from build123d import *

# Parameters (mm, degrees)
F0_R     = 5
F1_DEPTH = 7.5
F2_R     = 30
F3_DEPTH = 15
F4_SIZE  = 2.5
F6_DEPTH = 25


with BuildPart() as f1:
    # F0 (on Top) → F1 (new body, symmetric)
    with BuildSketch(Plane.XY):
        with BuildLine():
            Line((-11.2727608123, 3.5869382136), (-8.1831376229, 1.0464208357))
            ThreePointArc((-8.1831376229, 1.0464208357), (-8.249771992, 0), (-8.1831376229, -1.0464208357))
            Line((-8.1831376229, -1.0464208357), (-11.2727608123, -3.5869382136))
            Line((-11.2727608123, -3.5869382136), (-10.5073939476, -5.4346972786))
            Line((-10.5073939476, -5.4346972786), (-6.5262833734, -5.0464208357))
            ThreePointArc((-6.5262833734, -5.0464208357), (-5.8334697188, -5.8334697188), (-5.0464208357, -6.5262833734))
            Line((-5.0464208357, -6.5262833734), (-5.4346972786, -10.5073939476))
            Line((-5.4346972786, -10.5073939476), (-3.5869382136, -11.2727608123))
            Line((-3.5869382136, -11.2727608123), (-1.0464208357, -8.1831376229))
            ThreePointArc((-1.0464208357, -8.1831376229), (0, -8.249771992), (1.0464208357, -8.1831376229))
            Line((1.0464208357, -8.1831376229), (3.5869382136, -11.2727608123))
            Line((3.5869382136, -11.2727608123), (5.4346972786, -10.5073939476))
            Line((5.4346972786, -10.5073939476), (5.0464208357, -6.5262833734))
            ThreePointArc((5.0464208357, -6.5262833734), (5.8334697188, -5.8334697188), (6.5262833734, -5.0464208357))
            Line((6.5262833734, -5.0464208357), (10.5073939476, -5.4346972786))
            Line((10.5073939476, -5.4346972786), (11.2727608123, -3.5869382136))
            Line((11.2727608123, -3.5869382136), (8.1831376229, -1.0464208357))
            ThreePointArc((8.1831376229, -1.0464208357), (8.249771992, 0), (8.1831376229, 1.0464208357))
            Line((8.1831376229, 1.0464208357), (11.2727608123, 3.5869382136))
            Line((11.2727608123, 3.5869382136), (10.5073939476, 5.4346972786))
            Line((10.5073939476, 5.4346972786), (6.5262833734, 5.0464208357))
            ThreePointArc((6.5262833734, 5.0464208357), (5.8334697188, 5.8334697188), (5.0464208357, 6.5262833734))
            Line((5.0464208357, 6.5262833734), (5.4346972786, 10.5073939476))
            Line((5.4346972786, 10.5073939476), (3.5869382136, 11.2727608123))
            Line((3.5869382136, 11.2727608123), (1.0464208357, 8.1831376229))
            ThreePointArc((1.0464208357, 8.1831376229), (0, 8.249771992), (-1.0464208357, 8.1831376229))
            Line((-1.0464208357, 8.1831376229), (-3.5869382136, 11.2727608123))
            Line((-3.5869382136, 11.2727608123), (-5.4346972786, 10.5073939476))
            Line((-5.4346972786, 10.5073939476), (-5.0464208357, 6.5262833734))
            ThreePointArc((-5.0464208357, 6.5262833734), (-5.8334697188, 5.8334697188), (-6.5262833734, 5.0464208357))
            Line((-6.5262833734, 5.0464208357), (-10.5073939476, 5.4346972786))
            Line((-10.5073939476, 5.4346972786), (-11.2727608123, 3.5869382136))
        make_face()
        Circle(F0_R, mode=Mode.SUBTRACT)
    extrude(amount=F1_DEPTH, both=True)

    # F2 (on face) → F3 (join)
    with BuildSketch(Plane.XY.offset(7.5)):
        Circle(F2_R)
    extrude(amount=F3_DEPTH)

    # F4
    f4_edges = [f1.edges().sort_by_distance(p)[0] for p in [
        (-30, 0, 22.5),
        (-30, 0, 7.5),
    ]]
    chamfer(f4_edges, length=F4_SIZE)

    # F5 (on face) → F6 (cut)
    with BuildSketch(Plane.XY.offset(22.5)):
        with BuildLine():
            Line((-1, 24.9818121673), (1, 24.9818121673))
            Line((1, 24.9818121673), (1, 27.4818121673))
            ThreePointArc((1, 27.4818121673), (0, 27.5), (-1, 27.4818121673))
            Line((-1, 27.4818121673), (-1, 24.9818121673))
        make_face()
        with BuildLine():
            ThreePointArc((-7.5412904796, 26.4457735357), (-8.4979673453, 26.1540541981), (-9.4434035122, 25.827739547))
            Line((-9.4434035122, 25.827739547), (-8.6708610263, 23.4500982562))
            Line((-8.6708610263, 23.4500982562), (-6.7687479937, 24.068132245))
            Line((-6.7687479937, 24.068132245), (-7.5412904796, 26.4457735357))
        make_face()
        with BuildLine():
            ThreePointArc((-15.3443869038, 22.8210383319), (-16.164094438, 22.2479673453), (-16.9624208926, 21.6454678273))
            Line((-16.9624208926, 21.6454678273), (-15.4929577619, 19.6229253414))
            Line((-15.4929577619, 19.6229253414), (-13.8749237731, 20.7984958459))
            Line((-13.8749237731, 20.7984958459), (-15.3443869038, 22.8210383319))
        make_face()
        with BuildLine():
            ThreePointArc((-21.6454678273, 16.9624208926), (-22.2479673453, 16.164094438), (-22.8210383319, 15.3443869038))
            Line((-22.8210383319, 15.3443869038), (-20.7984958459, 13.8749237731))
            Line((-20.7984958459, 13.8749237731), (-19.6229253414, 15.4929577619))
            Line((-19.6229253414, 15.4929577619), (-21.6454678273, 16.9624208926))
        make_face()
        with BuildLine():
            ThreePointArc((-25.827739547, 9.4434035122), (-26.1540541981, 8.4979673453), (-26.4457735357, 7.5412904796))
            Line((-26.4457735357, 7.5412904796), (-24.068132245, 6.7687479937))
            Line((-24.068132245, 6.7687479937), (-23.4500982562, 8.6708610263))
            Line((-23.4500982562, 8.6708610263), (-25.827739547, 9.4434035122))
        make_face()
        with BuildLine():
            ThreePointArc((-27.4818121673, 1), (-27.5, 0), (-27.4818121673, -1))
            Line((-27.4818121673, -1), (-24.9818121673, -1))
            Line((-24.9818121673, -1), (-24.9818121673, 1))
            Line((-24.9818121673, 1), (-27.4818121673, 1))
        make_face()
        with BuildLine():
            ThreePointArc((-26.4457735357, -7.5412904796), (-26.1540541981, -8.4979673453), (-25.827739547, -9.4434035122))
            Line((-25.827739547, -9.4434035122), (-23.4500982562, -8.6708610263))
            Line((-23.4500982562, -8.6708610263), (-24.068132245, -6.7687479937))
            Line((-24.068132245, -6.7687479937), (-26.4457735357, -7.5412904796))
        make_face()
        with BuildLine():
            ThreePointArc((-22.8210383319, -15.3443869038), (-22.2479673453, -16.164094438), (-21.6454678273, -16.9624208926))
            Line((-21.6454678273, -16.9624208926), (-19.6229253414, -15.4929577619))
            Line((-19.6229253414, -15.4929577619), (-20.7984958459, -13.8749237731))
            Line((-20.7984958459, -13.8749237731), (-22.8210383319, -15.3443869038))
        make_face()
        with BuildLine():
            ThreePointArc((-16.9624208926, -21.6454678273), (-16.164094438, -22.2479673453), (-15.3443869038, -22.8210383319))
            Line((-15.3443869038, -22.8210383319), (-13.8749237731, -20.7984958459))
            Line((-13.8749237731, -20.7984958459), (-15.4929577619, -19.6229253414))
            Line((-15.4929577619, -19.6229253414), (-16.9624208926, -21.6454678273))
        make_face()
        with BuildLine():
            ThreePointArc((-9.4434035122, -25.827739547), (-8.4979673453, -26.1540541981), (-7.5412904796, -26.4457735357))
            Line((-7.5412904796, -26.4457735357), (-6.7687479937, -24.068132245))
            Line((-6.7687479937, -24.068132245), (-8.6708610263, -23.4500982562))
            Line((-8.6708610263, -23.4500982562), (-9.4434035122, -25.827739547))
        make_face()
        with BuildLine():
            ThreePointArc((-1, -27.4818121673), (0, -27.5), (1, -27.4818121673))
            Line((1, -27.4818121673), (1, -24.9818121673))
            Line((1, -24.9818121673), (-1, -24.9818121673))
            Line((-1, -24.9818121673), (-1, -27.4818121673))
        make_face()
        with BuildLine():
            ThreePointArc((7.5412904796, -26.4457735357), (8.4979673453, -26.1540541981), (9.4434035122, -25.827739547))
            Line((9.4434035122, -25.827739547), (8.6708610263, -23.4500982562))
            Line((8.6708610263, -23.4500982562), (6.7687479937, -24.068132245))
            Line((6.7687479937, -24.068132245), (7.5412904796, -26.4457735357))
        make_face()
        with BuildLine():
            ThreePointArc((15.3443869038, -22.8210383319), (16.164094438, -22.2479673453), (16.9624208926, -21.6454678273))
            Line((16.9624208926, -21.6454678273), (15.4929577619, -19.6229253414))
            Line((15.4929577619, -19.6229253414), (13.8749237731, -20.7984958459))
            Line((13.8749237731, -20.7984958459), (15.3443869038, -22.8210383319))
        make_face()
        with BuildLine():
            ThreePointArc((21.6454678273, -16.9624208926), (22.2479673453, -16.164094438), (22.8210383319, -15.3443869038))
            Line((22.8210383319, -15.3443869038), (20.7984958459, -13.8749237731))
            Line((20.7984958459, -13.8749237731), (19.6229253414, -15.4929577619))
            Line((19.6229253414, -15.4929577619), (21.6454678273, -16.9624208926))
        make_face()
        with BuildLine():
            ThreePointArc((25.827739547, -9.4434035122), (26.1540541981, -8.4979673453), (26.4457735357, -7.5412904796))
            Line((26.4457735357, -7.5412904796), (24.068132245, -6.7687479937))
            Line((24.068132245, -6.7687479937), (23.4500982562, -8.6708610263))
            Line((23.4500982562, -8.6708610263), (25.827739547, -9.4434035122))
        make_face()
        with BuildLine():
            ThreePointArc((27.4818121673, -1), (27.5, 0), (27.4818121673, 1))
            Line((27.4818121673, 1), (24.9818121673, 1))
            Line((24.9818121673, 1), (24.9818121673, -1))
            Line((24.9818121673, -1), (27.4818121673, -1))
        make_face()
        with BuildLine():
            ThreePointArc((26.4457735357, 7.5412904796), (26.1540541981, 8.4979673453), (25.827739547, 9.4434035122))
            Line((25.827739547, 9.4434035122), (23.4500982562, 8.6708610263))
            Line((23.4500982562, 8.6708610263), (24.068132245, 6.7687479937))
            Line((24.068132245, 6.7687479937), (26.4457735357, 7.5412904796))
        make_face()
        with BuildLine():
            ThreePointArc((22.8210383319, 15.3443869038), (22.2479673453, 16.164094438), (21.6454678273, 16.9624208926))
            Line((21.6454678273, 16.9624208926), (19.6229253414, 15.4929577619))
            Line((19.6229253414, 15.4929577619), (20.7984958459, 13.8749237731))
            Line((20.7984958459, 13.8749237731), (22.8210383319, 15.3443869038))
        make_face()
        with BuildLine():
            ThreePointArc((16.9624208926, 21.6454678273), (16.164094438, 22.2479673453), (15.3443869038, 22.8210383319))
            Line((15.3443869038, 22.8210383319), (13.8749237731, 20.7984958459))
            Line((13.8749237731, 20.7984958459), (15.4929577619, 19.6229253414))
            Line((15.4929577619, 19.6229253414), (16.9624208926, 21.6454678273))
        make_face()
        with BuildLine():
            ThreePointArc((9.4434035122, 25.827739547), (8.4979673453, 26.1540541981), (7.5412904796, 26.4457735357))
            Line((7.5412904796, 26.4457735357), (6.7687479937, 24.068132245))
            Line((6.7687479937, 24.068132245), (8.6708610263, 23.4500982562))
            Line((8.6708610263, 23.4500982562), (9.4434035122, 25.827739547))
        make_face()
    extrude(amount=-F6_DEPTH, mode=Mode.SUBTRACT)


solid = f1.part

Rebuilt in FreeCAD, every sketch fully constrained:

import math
import FreeCAD as App
import Part
import Sketcher

V = App.Vector
Q = App.Units.Quantity


def edges_at(feature, points):
    """Names of the edges that pass closest to the given points."""
    edges = feature.Shape.Edges
    near = lambda p: min(range(len(edges)), key=lambda i: edges[i].distToShape(Part.Vertex(*p))[0])
    return sorted({f"Edge{near(p) + 1}" for p in points})

doc = App.newDocument("Part")
params = doc.addObject("Spreadsheet::Sheet", "Params")
for row, (alias, value) in enumerate([
    ("sketch1_diameter", "10 mm"),
    ("sketch1_length", "4 mm"),
    ("sketch1_length2", "2 mm"),
    ("pad1_length", "15 mm"),
    ("sketch2_diameter", "60 mm"),
    ("pad2_length", "15 mm"),
    ("chamfer_size", "2.5 mm"),
    ("sketch3_radius", "27.5 mm"),
    ("sketch3_width", "2 mm"),
    ("sketch3_length", "2 mm"),
    ("sketch3_width2", "2.5 mm"),
    ("sketch3_length2", "2.5 mm"),
    ("pocket1_length", "25 mm"),
], start=1):
    params.set(f"A{row}", alias)
    params.set(f"B{row}", "=" + value)
    params.setAlias(f"B{row}", alias)

body = doc.addObject("PartDesign::Body", "Body")

# Sketch on XY plane
sketch1 = doc.addObject("Sketcher::SketchObject", "Sketch")
body.addObject(sketch1)
sketch1.AttachmentSupport = (doc.XY_Plane, [""])
sketch1.MapMode = "FlatFace"
sketch1.addGeometry([
    Part.LineSegment(V(-11.3, 3.6, 0), V(-8.2, 1, 0)),  # 0
    Part.ArcOfCircle(Part.Circle(V(0, 0, 0), V(0, 0, 1), 8.2), math.radians(172.71), math.radians(187.29)),  # 1
    Part.LineSegment(V(-8.2, -1, 0), V(-11.3, -3.6, 0)),  # 2
    Part.LineSegment(V(-11.3, -3.6, 0), V(-10.5, -5.4, 0)),  # 3
    Part.LineSegment(V(-10.5, -5.4, 0), V(-6.5, -5, 0)),  # 4
    Part.ArcOfCircle(Part.Circle(V(0, 0, 0), V(0, 0, 1), 8.2), math.radians(-142.29), math.radians(-127.71)),  # 5
    Part.LineSegment(V(-5, -6.5, 0), V(-5.4, -10.5, 0)),  # 6
    Part.LineSegment(V(-5.4, -10.5, 0), V(-3.6, -11.3, 0)),  # 7
    Part.LineSegment(V(-3.6, -11.3, 0), V(-1, -8.2, 0)),  # 8
    Part.ArcOfCircle(Part.Circle(V(0, 0, 0), V(0, 0, 1), 8.2), math.radians(-97.29), math.radians(-82.71)),  # 9
    Part.LineSegment(V(1, -8.2, 0), V(3.6, -11.3, 0)),  # 10
    Part.LineSegment(V(3.6, -11.3, 0), V(5.4, -10.5, 0)),  # 11
    Part.LineSegment(V(5.4, -10.5, 0), V(5, -6.5, 0)),  # 12
    Part.ArcOfCircle(Part.Circle(V(0, 0, 0), V(0, 0, 1), 8.2), math.radians(-52.29), math.radians(-37.71)),  # 13
    Part.LineSegment(V(6.5, -5, 0), V(10.5, -5.4, 0)),  # 14
    Part.LineSegment(V(10.5, -5.4, 0), V(11.3, -3.6, 0)),  # 15
    Part.LineSegment(V(11.3, -3.6, 0), V(8.2, -1, 0)),  # 16
    Part.ArcOfCircle(Part.Circle(V(0, 0, 0), V(0, 0, 1), 8.2), math.radians(-7.29), math.radians(7.29)),  # 17
    Part.LineSegment(V(8.2, 1, 0), V(11.3, 3.6, 0)),  # 18
    Part.LineSegment(V(11.3, 3.6, 0), V(10.5, 5.4, 0)),  # 19
    Part.LineSegment(V(10.5, 5.4, 0), V(6.5, 5, 0)),  # 20
    Part.ArcOfCircle(Part.Circle(V(0, 0, 0), V(0, 0, 1), 8.2), math.radians(37.71), math.radians(52.29)),  # 21
    Part.LineSegment(V(5, 6.5, 0), V(5.4, 10.5, 0)),  # 22
    Part.LineSegment(V(5.4, 10.5, 0), V(3.6, 11.3, 0)),  # 23
    Part.LineSegment(V(3.6, 11.3, 0), V(1, 8.2, 0)),  # 24
    Part.ArcOfCircle(Part.Circle(V(0, 0, 0), V(0, 0, 1), 8.2), math.radians(82.71), math.radians(97.29)),  # 25
    Part.LineSegment(V(-1, 8.2, 0), V(-3.6, 11.3, 0)),  # 26
    Part.LineSegment(V(-3.6, 11.3, 0), V(-5.4, 10.5, 0)),  # 27
    Part.LineSegment(V(-5.4, 10.5, 0), V(-5, 6.5, 0)),  # 28
    Part.ArcOfCircle(Part.Circle(V(0, 0, 0), V(0, 0, 1), 8.2), math.radians(127.71), math.radians(142.29)),  # 29
    Part.LineSegment(V(-6.5, 5, 0), V(-10.5, 5.4, 0)),  # 30
    Part.LineSegment(V(-10.5, 5.4, 0), V(-11.3, 3.6, 0)),  # 31
    Part.Circle(V(0, 0, 0), V(0, 0, 1), 5),  # 32
], False)
sketch1.addConstraint([
    Sketcher.Constraint("Coincident", 0, 2, 1, 1),
    Sketcher.Constraint("Coincident", 1, 2, 2, 1),
    Sketcher.Constraint("Coincident", 2, 2, 3, 1),
    Sketcher.Constraint("Coincident", 3, 2, 4, 1),
    Sketcher.Constraint("Coincident", 4, 2, 5, 1),
    Sketcher.Constraint("Coincident", 5, 2, 6, 1),
    Sketcher.Constraint("Coincident", 6, 2, 7, 1),
    Sketcher.Constraint("Coincident", 7, 2, 8, 1),
    Sketcher.Constraint("Coincident", 8, 2, 9, 1),
    Sketcher.Constraint("Coincident", 9, 2, 10, 1),
    Sketcher.Constraint("Coincident", 10, 2, 11, 1),
    Sketcher.Constraint("Coincident", 11, 2, 12, 1),
    Sketcher.Constraint("Coincident", 12, 2, 13, 1),
    Sketcher.Constraint("Coincident", 13, 2, 14, 1),
    Sketcher.Constraint("Coincident", 14, 2, 15, 1),
    Sketcher.Constraint("Coincident", 15, 2, 16, 1),
    Sketcher.Constraint("Coincident", 16, 2, 17, 1),
    Sketcher.Constraint("Coincident", 17, 2, 18, 1),
    Sketcher.Constraint("Coincident", 18, 2, 19, 1),
    Sketcher.Constraint("Coincident", 19, 2, 20, 1),
    Sketcher.Constraint("Coincident", 20, 2, 21, 1),
    Sketcher.Constraint("Coincident", 21, 2, 22, 1),
    Sketcher.Constraint("Coincident", 22, 2, 23, 1),
    Sketcher.Constraint("Coincident", 23, 2, 24, 1),
    Sketcher.Constraint("Coincident", 24, 2, 25, 1),
    Sketcher.Constraint("Coincident", 25, 2, 26, 1),
    Sketcher.Constraint("Coincident", 26, 2, 27, 1),
    Sketcher.Constraint("Coincident", 27, 2, 28, 1),
    Sketcher.Constraint("Coincident", 28, 2, 29, 1),
    Sketcher.Constraint("Coincident", 29, 2, 30, 1),
    Sketcher.Constraint("Coincident", 30, 2, 31, 1),
    Sketcher.Constraint("Coincident", 31, 2, 0, 1),
    Sketcher.Constraint("Coincident", 1, 3, -1, 1),
    Sketcher.Constraint("Coincident", 5, 3, -1, 1),
    Sketcher.Constraint("Coincident", 9, 3, -1, 1),
    Sketcher.Constraint("Coincident", 13, 3, -1, 1),
    Sketcher.Constraint("Coincident", 17, 3, -1, 1),
    Sketcher.Constraint("Coincident", 21, 3, -1, 1),
    Sketcher.Constraint("Coincident", 25, 3, -1, 1),
    Sketcher.Constraint("Coincident", 29, 3, -1, 1),
    Sketcher.Constraint("Coincident", 32, 3, -1, 1),
    Sketcher.Constraint("Equal", 1, 5),
    Sketcher.Constraint("Equal", 5, 9),
    Sketcher.Constraint("Equal", 9, 13),
    Sketcher.Constraint("Equal", 13, 17),
    Sketcher.Constraint("Equal", 17, 21),
    Sketcher.Constraint("Equal", 21, 25),
    Sketcher.Constraint("Equal", 25, 29),
    Sketcher.Constraint("Symmetric", 2, 2, 18, 2, -1, 1),
    Sketcher.Constraint("Symmetric", 3, 2, 19, 2, -1, 1),
    Sketcher.Constraint("Symmetric", 6, 2, 22, 2, -1, 1),
    Sketcher.Constraint("Symmetric", 7, 2, 23, 2, -1, 1),
    Sketcher.Constraint("Symmetric", 10, 2, 26, 2, -1, 1),
    Sketcher.Constraint("Symmetric", 11, 2, 27, 2, -1, 1),
    Sketcher.Constraint("Symmetric", 14, 2, 30, 2, -1, 1),
    Sketcher.Constraint("Symmetric", 15, 2, 31, 2, -1, 1),
    Sketcher.Constraint("Symmetric", 7, 2, 10, 2, -2),
    Sketcher.Constraint("Symmetric", 6, 2, 11, 2, -2),
    Sketcher.Constraint("Symmetric", 3, 2, 14, 2, -2),
    Sketcher.Constraint("Symmetric", 2, 2, 15, 2, -2),
    Sketcher.Constraint("Perpendicular", 0, 8),
    Sketcher.Constraint("Perpendicular", 2, 10),
    Sketcher.Constraint("Perpendicular", 3, 11),
    Sketcher.Constraint("Perpendicular", 4, 12),
    Sketcher.Constraint("Perpendicular", 6, 14),
    Sketcher.Constraint("Perpendicular", 8, 16),
    Sketcher.Constraint("Perpendicular", 10, 18),
    Sketcher.Constraint("Perpendicular", 12, 20),
    Sketcher.Constraint("Perpendicular", 14, 22),
    Sketcher.Constraint("Perpendicular", 16, 24),
    Sketcher.Constraint("Perpendicular", 18, 26),
    Sketcher.Constraint("Perpendicular", 20, 28),
    Sketcher.Constraint("Perpendicular", 22, 30),
    Sketcher.Constraint("Horizontal", 8, 2, 9, 2),
    Sketcher.Constraint("Horizontal", 5, 2, 12, 2),
    Sketcher.Constraint("Equal", 2, 4),
    Sketcher.Constraint("Equal", 4, 6),
    Sketcher.Constraint("Equal", 3, 7),
    Sketcher.Constraint("Equal", 6, 8),
    Sketcher.Constraint("Diameter", 32, Q("10 mm")),
    Sketcher.Constraint("Distance", 0, Q("4 mm")),
    Sketcher.Constraint("Distance", 3, Q("2 mm")),
    Sketcher.Constraint("Angle", 3, Q("-67.5 deg")),
    Sketcher.Constraint("DistanceY", 4, 2, 1, 2, Q("4 mm")),
    Sketcher.Constraint("Radius", 1, Q("8.249772 mm")),
    Sketcher.Constraint("DistanceY", -1, 1, 0, 2, Q("1.046421 mm")),
])
sketch1.setExpression("Constraints[79]", "Params.sketch1_diameter")
sketch1.setExpression("Constraints[80]", "Params.sketch1_length")
sketch1.setExpression("Constraints[81]", "Params.sketch1_length2")
pad1 = doc.addObject("PartDesign::Pad", "Pad")
body.addObject(pad1)
pad1.Profile = sketch1
pad1.setExpression("Length", "Params.pad1_length")
pad1.Midplane = True

# Sketch on XY plane
sketch2 = doc.addObject("Sketcher::SketchObject", "Sketch001")
body.addObject(sketch2)
sketch2.AttachmentSupport = (doc.XY_Plane, [""])
sketch2.MapMode = "FlatFace"
sketch2.AttachmentOffset = App.Placement(V(0, 0, 7.5), App.Rotation())
sketch2.addGeometry(Part.Circle(V(0, 0, 0), V(0, 0, 1), 30), False)
sketch2.addConstraint([
    Sketcher.Constraint("Coincident", 0, 3, -1, 1),
    Sketcher.Constraint("Diameter", 0, Q("60 mm")),
])
sketch2.setExpression("Constraints[1]", "Params.sketch2_diameter")
pad2 = doc.addObject("PartDesign::Pad", "Pad001")
body.addObject(pad2)
pad2.Profile = sketch2
pad2.setExpression("Length", "Params.pad2_length")
doc.recompute()

chamfer = doc.addObject("PartDesign::Chamfer", "Chamfer")
body.addObject(chamfer)
chamfer.Base = (pad2, edges_at(pad2, [(-30, 0, 22.5), (-30, 0, 7.5)]))
chamfer.setExpression("Size", "Params.chamfer_size")

# Sketch on XY plane
sketch3 = doc.addObject("Sketcher::SketchObject", "Sketch002")
body.addObject(sketch3)
sketch3.AttachmentSupport = (doc.XY_Plane, [""])
sketch3.MapMode = "FlatFace"
sketch3.AttachmentOffset = App.Placement(V(0, 0, 22.5), App.Rotation())
sketch3.addGeometry([
    Part.LineSegment(V(-1, 25, 0), V(1, 25, 0)),  # 0
    Part.LineSegment(V(1, 25, 0), V(1, 27.5, 0)),  # 1
    Part.ArcOfCircle(Part.Circle(V(0, 0, 0), V(0, 0, 1), 27.5), math.radians(87.92), math.radians(92.08)),  # 2
    Part.LineSegment(V(-1, 27.5, 0), V(-1, 25, 0)),  # 3
    Part.ArcOfCircle(Part.Circle(V(0, 0, 0), V(0, 0, 1), 27.5), math.radians(105.92), math.radians(110.08)),  # 4
    Part.LineSegment(V(-9.4, 25.8, 0), V(-8.7, 23.5, 0)),  # 5
    Part.LineSegment(V(-8.7, 23.5, 0), V(-6.8, 24.1, 0)),  # 6
    Part.LineSegment(V(-6.8, 24.1, 0), V(-7.5, 26.4, 0)),  # 7
    Part.ArcOfCircle(Part.Circle(V(0, 0, 0), V(0, 0, 1), 27.5), math.radians(123.92), math.radians(128.08)),  # 8
    Part.LineSegment(V(-17, 21.6, 0), V(-15.5, 19.6, 0)),  # 9
    Part.LineSegment(V(-15.5, 19.6, 0), V(-13.9, 20.8, 0)),  # 10
    Part.LineSegment(V(-13.9, 20.8, 0), V(-15.3, 22.8, 0)),  # 11
    Part.ArcOfCircle(Part.Circle(V(0, 0, 0), V(0, 0, 1), 27.5), math.radians(141.92), math.radians(146.08)),  # 12
    Part.LineSegment(V(-22.8, 15.3, 0), V(-20.8, 13.9, 0)),  # 13
    Part.LineSegment(V(-20.8, 13.9, 0), V(-19.6, 15.5, 0)),  # 14
    Part.LineSegment(V(-19.6, 15.5, 0), V(-21.6, 17, 0)),  # 15
    Part.ArcOfCircle(Part.Circle(V(0, 0, 0), V(0, 0, 1), 27.5), math.radians(159.92), math.radians(164.08)),  # 16
    Part.LineSegment(V(-26.4, 7.5, 0), V(-24.1, 6.8, 0)),  # 17
    Part.LineSegment(V(-24.1, 6.8, 0), V(-23.5, 8.7, 0)),  # 18
    Part.LineSegment(V(-23.5, 8.7, 0), V(-25.8, 9.4, 0)),  # 19
    Part.ArcOfCircle(Part.Circle(V(0, 0, 0), V(0, 0, 1), 27.5), math.radians(177.92), math.radians(182.08)),  # 20
    Part.LineSegment(V(-27.5, -1, 0), V(-25, -1, 0)),  # 21
    Part.LineSegment(V(-25, -1, 0), V(-25, 1, 0)),  # 22
    Part.LineSegment(V(-25, 1, 0), V(-27.5, 1, 0)),  # 23
    Part.ArcOfCircle(Part.Circle(V(0, 0, 0), V(0, 0, 1), 27.5), math.radians(-164.08), math.radians(-159.92)),  # 24
    Part.LineSegment(V(-25.8, -9.4, 0), V(-23.5, -8.7, 0)),  # 25
    Part.LineSegment(V(-23.5, -8.7, 0), V(-24.1, -6.8, 0)),  # 26
    Part.LineSegment(V(-24.1, -6.8, 0), V(-26.4, -7.5, 0)),  # 27
    Part.ArcOfCircle(Part.Circle(V(0, 0, 0), V(0, 0, 1), 27.5), math.radians(-146.08), math.radians(-141.92)),  # 28
    Part.LineSegment(V(-21.6, -17, 0), V(-19.6, -15.5, 0)),  # 29
    Part.LineSegment(V(-19.6, -15.5, 0), V(-20.8, -13.9, 0)),  # 30
    Part.LineSegment(V(-20.8, -13.9, 0), V(-22.8, -15.3, 0)),  # 31
    Part.ArcOfCircle(Part.Circle(V(0, 0, 0), V(0, 0, 1), 27.5), math.radians(-128.08), math.radians(-123.92)),  # 32
    Part.LineSegment(V(-15.3, -22.8, 0), V(-13.9, -20.8, 0)),  # 33
    Part.LineSegment(V(-13.9, -20.8, 0), V(-15.5, -19.6, 0)),  # 34
    Part.LineSegment(V(-15.5, -19.6, 0), V(-17, -21.6, 0)),  # 35
    Part.ArcOfCircle(Part.Circle(V(0, 0, 0), V(0, 0, 1), 27.5), math.radians(-110.08), math.radians(-105.92)),  # 36
    Part.LineSegment(V(-7.5, -26.4, 0), V(-6.8, -24.1, 0)),  # 37
    Part.LineSegment(V(-6.8, -24.1, 0), V(-8.7, -23.5, 0)),  # 38
    Part.LineSegment(V(-8.7, -23.5, 0), V(-9.4, -25.8, 0)),  # 39
    Part.ArcOfCircle(Part.Circle(V(0, 0, 0), V(0, 0, 1), 27.5), math.radians(-92.08), math.radians(-87.92)),  # 40
    Part.LineSegment(V(1, -27.5, 0), V(1, -25, 0)),  # 41
    Part.LineSegment(V(1, -25, 0), V(-1, -25, 0)),  # 42
    Part.LineSegment(V(-1, -25, 0), V(-1, -27.5, 0)),  # 43
    Part.ArcOfCircle(Part.Circle(V(0, 0, 0), V(0, 0, 1), 27.5), math.radians(-74.08), math.radians(-69.92)),  # 44
    Part.LineSegment(V(9.4, -25.8, 0), V(8.7, -23.5, 0)),  # 45
    Part.LineSegment(V(8.7, -23.5, 0), V(6.8, -24.1, 0)),  # 46
    Part.LineSegment(V(6.8, -24.1, 0), V(7.5, -26.4, 0)),  # 47
    Part.ArcOfCircle(Part.Circle(V(0, 0, 0), V(0, 0, 1), 27.5), math.radians(-56.08), math.radians(-51.92)),  # 48
    Part.LineSegment(V(17, -21.6, 0), V(15.5, -19.6, 0)),  # 49
    Part.LineSegment(V(15.5, -19.6, 0), V(13.9, -20.8, 0)),  # 50
    Part.LineSegment(V(13.9, -20.8, 0), V(15.3, -22.8, 0)),  # 51
    Part.ArcOfCircle(Part.Circle(V(0, 0, 0), V(0, 0, 1), 27.5), math.radians(-38.08), math.radians(-33.92)),  # 52
    Part.LineSegment(V(22.8, -15.3, 0), V(20.8, -13.9, 0)),  # 53
    Part.LineSegment(V(20.8, -13.9, 0), V(19.6, -15.5, 0)),  # 54
    Part.LineSegment(V(19.6, -15.5, 0), V(21.6, -17, 0)),  # 55
    Part.ArcOfCircle(Part.Circle(V(0, 0, 0), V(0, 0, 1), 27.5), math.radians(-20.08), math.radians(-15.92)),  # 56
    Part.LineSegment(V(26.4, -7.5, 0), V(24.1, -6.8, 0)),  # 57
    Part.LineSegment(V(24.1, -6.8, 0), V(23.5, -8.7, 0)),  # 58
    Part.LineSegment(V(23.5, -8.7, 0), V(25.8, -9.4, 0)),  # 59
    Part.ArcOfCircle(Part.Circle(V(0, 0, 0), V(0, 0, 1), 27.5), math.radians(-2.08), math.radians(2.08)),  # 60
    Part.LineSegment(V(27.5, 1, 0), V(25, 1, 0)),  # 61
    Part.LineSegment(V(25, 1, 0), V(25, -1, 0)),  # 62
    Part.LineSegment(V(25, -1, 0), V(27.5, -1, 0)),  # 63
    Part.ArcOfCircle(Part.Circle(V(0, 0, 0), V(0, 0, 1), 27.5), math.radians(15.92), math.radians(20.08)),  # 64
    Part.LineSegment(V(25.8, 9.4, 0), V(23.5, 8.7, 0)),  # 65
    Part.LineSegment(V(23.5, 8.7, 0), V(24.1, 6.8, 0)),  # 66
    Part.LineSegment(V(24.1, 6.8, 0), V(26.4, 7.5, 0)),  # 67
    Part.ArcOfCircle(Part.Circle(V(0, 0, 0), V(0, 0, 1), 27.5), math.radians(33.92), math.radians(38.08)),  # 68
    Part.LineSegment(V(21.6, 17, 0), V(19.6, 15.5, 0)),  # 69
    Part.LineSegment(V(19.6, 15.5, 0), V(20.8, 13.9, 0)),  # 70
    Part.LineSegment(V(20.8, 13.9, 0), V(22.8, 15.3, 0)),  # 71
    Part.ArcOfCircle(Part.Circle(V(0, 0, 0), V(0, 0, 1), 27.5), math.radians(51.92), math.radians(56.08)),  # 72
    Part.LineSegment(V(15.3, 22.8, 0), V(13.9, 20.8, 0)),  # 73
    Part.LineSegment(V(13.9, 20.8, 0), V(15.5, 19.6, 0)),  # 74
    Part.LineSegment(V(15.5, 19.6, 0), V(17, 21.6, 0)),  # 75
    Part.ArcOfCircle(Part.Circle(V(0, 0, 0), V(0, 0, 1), 27.5), math.radians(69.92), math.radians(74.08)),  # 76
    Part.LineSegment(V(7.5, 26.4, 0), V(6.8, 24.1, 0)),  # 77
    Part.LineSegment(V(6.8, 24.1, 0), V(8.7, 23.5, 0)),  # 78
    Part.LineSegment(V(8.7, 23.5, 0), V(9.4, 25.8, 0)),  # 79
], False)
sketch3.addConstraint([
    Sketcher.Constraint("Coincident", 0, 2, 1, 1),
    Sketcher.Constraint("Coincident", 1, 2, 2, 1),
    Sketcher.Constraint("Coincident", 2, 2, 3, 1),
    Sketcher.Constraint("Coincident", 3, 2, 0, 1),
    Sketcher.Constraint("Coincident", 4, 2, 5, 1),
    Sketcher.Constraint("Coincident", 5, 2, 6, 1),
    Sketcher.Constraint("Coincident", 6, 2, 7, 1),
    Sketcher.Constraint("Coincident", 7, 2, 4, 1),
    Sketcher.Constraint("Coincident", 8, 2, 9, 1),
    Sketcher.Constraint("Coincident", 9, 2, 10, 1),
    Sketcher.Constraint("Coincident", 10, 2, 11, 1),
    Sketcher.Constraint("Coincident", 11, 2, 8, 1),
    Sketcher.Constraint("Coincident", 12, 2, 13, 1),
    Sketcher.Constraint("Coincident", 13, 2, 14, 1),
    Sketcher.Constraint("Coincident", 14, 2, 15, 1),
    Sketcher.Constraint("Coincident", 15, 2, 12, 1),
    Sketcher.Constraint("Coincident", 16, 2, 17, 1),
    Sketcher.Constraint("Coincident", 17, 2, 18, 1),
    Sketcher.Constraint("Coincident", 18, 2, 19, 1),
    Sketcher.Constraint("Coincident", 19, 2, 16, 1),
    Sketcher.Constraint("Coincident", 20, 2, 21, 1),
    Sketcher.Constraint("Coincident", 21, 2, 22, 1),
    Sketcher.Constraint("Coincident", 22, 2, 23, 1),
    Sketcher.Constraint("Coincident", 23, 2, 20, 1),
    Sketcher.Constraint("Coincident", 24, 2, 25, 1),
    Sketcher.Constraint("Coincident", 25, 2, 26, 1),
    Sketcher.Constraint("Coincident", 26, 2, 27, 1),
    Sketcher.Constraint("Coincident", 27, 2, 24, 1),
    Sketcher.Constraint("Coincident", 28, 2, 29, 1),
    Sketcher.Constraint("Coincident", 29, 2, 30, 1),
    Sketcher.Constraint("Coincident", 30, 2, 31, 1),
    Sketcher.Constraint("Coincident", 31, 2, 28, 1),
    Sketcher.Constraint("Coincident", 32, 2, 33, 1),
    Sketcher.Constraint("Coincident", 33, 2, 34, 1),
    Sketcher.Constraint("Coincident", 34, 2, 35, 1),
    Sketcher.Constraint("Coincident", 35, 2, 32, 1),
    Sketcher.Constraint("Coincident", 36, 2, 37, 1),
    Sketcher.Constraint("Coincident", 37, 2, 38, 1),
    Sketcher.Constraint("Coincident", 38, 2, 39, 1),
    Sketcher.Constraint("Coincident", 39, 2, 36, 1),
    Sketcher.Constraint("Coincident", 40, 2, 41, 1),
    Sketcher.Constraint("Coincident", 41, 2, 42, 1),
    Sketcher.Constraint("Coincident", 42, 2, 43, 1),
    Sketcher.Constraint("Coincident", 43, 2, 40, 1),
    Sketcher.Constraint("Coincident", 44, 2, 45, 1),
    Sketcher.Constraint("Coincident", 45, 2, 46, 1),
    Sketcher.Constraint("Coincident", 46, 2, 47, 1),
    Sketcher.Constraint("Coincident", 47, 2, 44, 1),
    Sketcher.Constraint("Coincident", 48, 2, 49, 1),
    Sketcher.Constraint("Coincident", 49, 2, 50, 1),
    Sketcher.Constraint("Coincident", 50, 2, 51, 1),
    Sketcher.Constraint("Coincident", 51, 2, 48, 1),
    Sketcher.Constraint("Coincident", 52, 2, 53, 1),
    Sketcher.Constraint("Coincident", 53, 2, 54, 1),
    Sketcher.Constraint("Coincident", 54, 2, 55, 1),
    Sketcher.Constraint("Coincident", 55, 2, 52, 1),
    Sketcher.Constraint("Coincident", 56, 2, 57, 1),
    Sketcher.Constraint("Coincident", 57, 2, 58, 1),
    Sketcher.Constraint("Coincident", 58, 2, 59, 1),
    Sketcher.Constraint("Coincident", 59, 2, 56, 1),
    Sketcher.Constraint("Coincident", 60, 2, 61, 1),
    Sketcher.Constraint("Coincident", 61, 2, 62, 1),
    Sketcher.Constraint("Coincident", 62, 2, 63, 1),
    Sketcher.Constraint("Coincident", 63, 2, 60, 1),
    Sketcher.Constraint("Coincident", 64, 2, 65, 1),
    Sketcher.Constraint("Coincident", 65, 2, 66, 1),
    Sketcher.Constraint("Coincident", 66, 2, 67, 1),
    Sketcher.Constraint("Coincident", 67, 2, 64, 1),
    Sketcher.Constraint("Coincident", 68, 2, 69, 1),
    Sketcher.Constraint("Coincident", 69, 2, 70, 1),
    Sketcher.Constraint("Coincident", 70, 2, 71, 1),
    Sketcher.Constraint("Coincident", 71, 2, 68, 1),
    Sketcher.Constraint("Coincident", 72, 2, 73, 1),
    Sketcher.Constraint("Coincident", 73, 2, 74, 1),
    Sketcher.Constraint("Coincident", 74, 2, 75, 1),
    Sketcher.Constraint("Coincident", 75, 2, 72, 1),
    Sketcher.Constraint("Coincident", 76, 2, 77, 1),
    Sketcher.Constraint("Coincident", 77, 2, 78, 1),
    Sketcher.Constraint("Coincident", 78, 2, 79, 1),
    Sketcher.Constraint("Coincident", 79, 2, 76, 1),
    Sketcher.Constraint("Horizontal", 0),
    Sketcher.Constraint("Vertical", 1),
    Sketcher.Constraint("Vertical", 3),
    Sketcher.Constraint("Horizontal", 21),
    Sketcher.Constraint("Vertical", 22),
    Sketcher.Constraint("Horizontal", 23),
    Sketcher.Constraint("Vertical", 41),
    Sketcher.Constraint("Horizontal", 42),
    Sketcher.Constraint("Vertical", 43),
    Sketcher.Constraint("Horizontal", 61),
    Sketcher.Constraint("Vertical", 62),
    Sketcher.Constraint("Horizontal", 63),
    Sketcher.Constraint("Coincident", 2, 3, -1, 1),
    Sketcher.Constraint("Coincident", 4, 3, -1, 1),
    Sketcher.Constraint("Coincident", 8, 3, -1, 1),
    Sketcher.Constraint("Coincident", 12, 3, -1, 1),
    Sketcher.Constraint("Coincident", 16, 3, -1, 1),
    Sketcher.Constraint("Coincident", 20, 3, -1, 1),
    Sketcher.Constraint("Coincident", 24, 3, -1, 1),
    Sketcher.Constraint("Coincident", 28, 3, -1, 1),
    Sketcher.Constraint("Coincident", 32, 3, -1, 1),
    Sketcher.Constraint("Coincident", 36, 3, -1, 1),
    Sketcher.Constraint("Coincident", 40, 3, -1, 1),
    Sketcher.Constraint("Coincident", 44, 3, -1, 1),
    Sketcher.Constraint("Coincident", 48, 3, -1, 1),
    Sketcher.Constraint("Coincident", 52, 3, -1, 1),
    Sketcher.Constraint("Coincident", 56, 3, -1, 1),
    Sketcher.Constraint("Coincident", 60, 3, -1, 1),
    Sketcher.Constraint("Coincident", 64, 3, -1, 1),
    Sketcher.Constraint("Coincident", 68, 3, -1, 1),
    Sketcher.Constraint("Coincident", 72, 3, -1, 1),
    Sketcher.Constraint("Coincident", 76, 3, -1, 1),
    Sketcher.Constraint("Equal", 2, 4),
    Sketcher.Constraint("Equal", 4, 8),
    Sketcher.Constraint("Equal", 8, 12),
    Sketcher.Constraint("Equal", 12, 16),
    Sketcher.Constraint("Equal", 16, 20),
    Sketcher.Constraint("Equal", 20, 24),
    Sketcher.Constraint("Equal", 24, 28),
    Sketcher.Constraint("Equal", 28, 32),
    Sketcher.Constraint("Equal", 32, 36),
    Sketcher.Constraint("Equal", 36, 40),
    Sketcher.Constraint("Equal", 40, 44),
    Sketcher.Constraint("Equal", 44, 48),
    Sketcher.Constraint("Equal", 48, 52),
    Sketcher.Constraint("Equal", 52, 56),
    Sketcher.Constraint("Equal", 56, 60),
    Sketcher.Constraint("Equal", 60, 64),
    Sketcher.Constraint("Equal", 64, 68),
    Sketcher.Constraint("Equal", 68, 72),
    Sketcher.Constraint("Equal", 72, 76),
    Sketcher.Constraint("Symmetric", 3, 2, 41, 2, -1, 1),
    Sketcher.Constraint("Symmetric", 5, 2, 45, 2, -1, 1),
    Sketcher.Constraint("Symmetric", 6, 2, 46, 2, -1, 1),
    Sketcher.Constraint("Symmetric", 9, 2, 49, 2, -1, 1),
    Sketcher.Constraint("Symmetric", 10, 2, 50, 2, -1, 1),
    Sketcher.Constraint("Symmetric", 13, 2, 53, 2, -1, 1),
    Sketcher.Constraint("Symmetric", 14, 2, 54, 2, -1, 1),
    Sketcher.Constraint("Symmetric", 17, 2, 57, 2, -1, 1),
    Sketcher.Constraint("Symmetric", 18, 2, 58, 2, -1, 1),
    Sketcher.Constraint("Symmetric", 21, 2, 61, 2, -1, 1),
    Sketcher.Constraint("Symmetric", 25, 2, 65, 2, -1, 1),
    Sketcher.Constraint("Symmetric", 26, 2, 66, 2, -1, 1),
    Sketcher.Constraint("Symmetric", 29, 2, 69, 2, -1, 1),
    Sketcher.Constraint("Symmetric", 30, 2, 70, 2, -1, 1),
    Sketcher.Constraint("Symmetric", 33, 2, 73, 2, -1, 1),
    Sketcher.Constraint("Symmetric", 34, 2, 74, 2, -1, 1),
    Sketcher.Constraint("Symmetric", 37, 2, 77, 2, -1, 1),
    Sketcher.Constraint("Symmetric", 38, 2, 78, 2, -1, 1),
    Sketcher.Constraint("Symmetric", 38, 2, 45, 2, -2),
    Sketcher.Constraint("Symmetric", 37, 2, 46, 2, -2),
    Sketcher.Constraint("Symmetric", 34, 2, 49, 2, -2),
    Sketcher.Constraint("Symmetric", 33, 2, 50, 2, -2),
    Sketcher.Constraint("Symmetric", 30, 2, 53, 2, -2),
    Sketcher.Constraint("Symmetric", 29, 2, 54, 2, -2),
    Sketcher.Constraint("Symmetric", 26, 2, 57, 2, -2),
    Sketcher.Constraint("Symmetric", 25, 2, 58, 2, -2),
    Sketcher.Constraint("Perpendicular", 5, 6),
    Sketcher.Constraint("Perpendicular", 6, 7),
    Sketcher.Constraint("Perpendicular", 9, 10),
    Sketcher.Constraint("Perpendicular", 10, 11),
    Sketcher.Constraint("Perpendicular", 13, 14),
    Sketcher.Constraint("Perpendicular", 14, 15),
    Sketcher.Constraint("Perpendicular", 17, 18),
    Sketcher.Constraint("Perpendicular", 18, 19),
    Sketcher.Constraint("Perpendicular", 7, 25),
    Sketcher.Constraint("Perpendicular", 25, 26),
    Sketcher.Constraint("Perpendicular", 26, 27),
    Sketcher.Constraint("Perpendicular", 11, 29),
    Sketcher.Constraint("Perpendicular", 29, 30),
    Sketcher.Constraint("Perpendicular", 30, 31),
    Sketcher.Constraint("Perpendicular", 15, 33),
    Sketcher.Constraint("Perpendicular", 34, 35),
    Sketcher.Constraint("Perpendicular", 19, 37),
    Sketcher.Constraint("Perpendicular", 38, 39),
    Sketcher.Constraint("Perpendicular", 27, 45),
    Sketcher.Constraint("Perpendicular", 46, 47),
    Sketcher.Constraint("Perpendicular", 31, 49),
    Sketcher.Constraint("Perpendicular", 50, 51),
    Sketcher.Constraint("Perpendicular", 35, 53),
    Sketcher.Constraint("Perpendicular", 54, 55),
    Sketcher.Constraint("Perpendicular", 39, 57),
    Sketcher.Constraint("Perpendicular", 58, 59),
    Sketcher.Constraint("Perpendicular", 47, 65),
    Sketcher.Constraint("Perpendicular", 66, 67),
    Sketcher.Constraint("Perpendicular", 51, 69),
    Sketcher.Constraint("Perpendicular", 70, 71),
    Sketcher.Constraint("Perpendicular", 55, 73),
    Sketcher.Constraint("Perpendicular", 74, 75),
    Sketcher.Constraint("Perpendicular", 59, 77),
    Sketcher.Constraint("Perpendicular", 78, 79),
    Sketcher.Constraint("Horizontal", 1, 2, 2, 2),
    Sketcher.Constraint("Horizontal", 40, 2, 43, 2),
    Sketcher.Constraint("Horizontal", 23, 2, 60, 2),
    Sketcher.Constraint("Horizontal", 21, 2, 62, 2),
    Sketcher.Constraint("Equal", 63, 1),
    Sketcher.Constraint("Equal", 42, 22),
    Sketcher.Constraint("Equal", 5, 7),
    Sketcher.Constraint("Equal", 7, 9),
    Sketcher.Constraint("Equal", 6, 10),
    Sketcher.Constraint("Equal", 9, 11),
    Sketcher.Constraint("Equal", 11, 13),
    Sketcher.Constraint("Equal", 10, 14),
    Sketcher.Constraint("Equal", 13, 15),
    Sketcher.Constraint("Equal", 15, 17),
    Sketcher.Constraint("Equal", 14, 18),
    Sketcher.Constraint("Equal", 17, 19),
    Sketcher.Constraint("Radius", 2, Q("27.5 mm")),
    Sketcher.Constraint("DistanceX", 0, 1, 0, 2, Q("2 mm")),
    Sketcher.Constraint("Angle", 5, Q("-72 deg")),
    Sketcher.Constraint("Angle", 9, Q("-54 deg")),
    Sketcher.Constraint("Distance", 6, Q("2 mm")),
    Sketcher.Constraint("DistanceX", 21, 1, 21, 2, Q("2.5 mm")),
    Sketcher.Constraint("Distance", 5, Q("2.5 mm")),
])
sketch3.setExpression("Constraints[207]", "Params.sketch3_radius")
sketch3.setExpression("Constraints[208]", "Params.sketch3_width")
sketch3.setExpression("Constraints[211]", "Params.sketch3_length")
sketch3.setExpression("Constraints[212]", "Params.sketch3_width2")
sketch3.setExpression("Constraints[213]", "Params.sketch3_length2")
pocket1 = doc.addObject("PartDesign::Pocket", "Pocket")
body.addObject(pocket1)
pocket1.Profile = sketch3
pocket1.setExpression("Length", "Params.pocket1_length")

doc.recompute()
